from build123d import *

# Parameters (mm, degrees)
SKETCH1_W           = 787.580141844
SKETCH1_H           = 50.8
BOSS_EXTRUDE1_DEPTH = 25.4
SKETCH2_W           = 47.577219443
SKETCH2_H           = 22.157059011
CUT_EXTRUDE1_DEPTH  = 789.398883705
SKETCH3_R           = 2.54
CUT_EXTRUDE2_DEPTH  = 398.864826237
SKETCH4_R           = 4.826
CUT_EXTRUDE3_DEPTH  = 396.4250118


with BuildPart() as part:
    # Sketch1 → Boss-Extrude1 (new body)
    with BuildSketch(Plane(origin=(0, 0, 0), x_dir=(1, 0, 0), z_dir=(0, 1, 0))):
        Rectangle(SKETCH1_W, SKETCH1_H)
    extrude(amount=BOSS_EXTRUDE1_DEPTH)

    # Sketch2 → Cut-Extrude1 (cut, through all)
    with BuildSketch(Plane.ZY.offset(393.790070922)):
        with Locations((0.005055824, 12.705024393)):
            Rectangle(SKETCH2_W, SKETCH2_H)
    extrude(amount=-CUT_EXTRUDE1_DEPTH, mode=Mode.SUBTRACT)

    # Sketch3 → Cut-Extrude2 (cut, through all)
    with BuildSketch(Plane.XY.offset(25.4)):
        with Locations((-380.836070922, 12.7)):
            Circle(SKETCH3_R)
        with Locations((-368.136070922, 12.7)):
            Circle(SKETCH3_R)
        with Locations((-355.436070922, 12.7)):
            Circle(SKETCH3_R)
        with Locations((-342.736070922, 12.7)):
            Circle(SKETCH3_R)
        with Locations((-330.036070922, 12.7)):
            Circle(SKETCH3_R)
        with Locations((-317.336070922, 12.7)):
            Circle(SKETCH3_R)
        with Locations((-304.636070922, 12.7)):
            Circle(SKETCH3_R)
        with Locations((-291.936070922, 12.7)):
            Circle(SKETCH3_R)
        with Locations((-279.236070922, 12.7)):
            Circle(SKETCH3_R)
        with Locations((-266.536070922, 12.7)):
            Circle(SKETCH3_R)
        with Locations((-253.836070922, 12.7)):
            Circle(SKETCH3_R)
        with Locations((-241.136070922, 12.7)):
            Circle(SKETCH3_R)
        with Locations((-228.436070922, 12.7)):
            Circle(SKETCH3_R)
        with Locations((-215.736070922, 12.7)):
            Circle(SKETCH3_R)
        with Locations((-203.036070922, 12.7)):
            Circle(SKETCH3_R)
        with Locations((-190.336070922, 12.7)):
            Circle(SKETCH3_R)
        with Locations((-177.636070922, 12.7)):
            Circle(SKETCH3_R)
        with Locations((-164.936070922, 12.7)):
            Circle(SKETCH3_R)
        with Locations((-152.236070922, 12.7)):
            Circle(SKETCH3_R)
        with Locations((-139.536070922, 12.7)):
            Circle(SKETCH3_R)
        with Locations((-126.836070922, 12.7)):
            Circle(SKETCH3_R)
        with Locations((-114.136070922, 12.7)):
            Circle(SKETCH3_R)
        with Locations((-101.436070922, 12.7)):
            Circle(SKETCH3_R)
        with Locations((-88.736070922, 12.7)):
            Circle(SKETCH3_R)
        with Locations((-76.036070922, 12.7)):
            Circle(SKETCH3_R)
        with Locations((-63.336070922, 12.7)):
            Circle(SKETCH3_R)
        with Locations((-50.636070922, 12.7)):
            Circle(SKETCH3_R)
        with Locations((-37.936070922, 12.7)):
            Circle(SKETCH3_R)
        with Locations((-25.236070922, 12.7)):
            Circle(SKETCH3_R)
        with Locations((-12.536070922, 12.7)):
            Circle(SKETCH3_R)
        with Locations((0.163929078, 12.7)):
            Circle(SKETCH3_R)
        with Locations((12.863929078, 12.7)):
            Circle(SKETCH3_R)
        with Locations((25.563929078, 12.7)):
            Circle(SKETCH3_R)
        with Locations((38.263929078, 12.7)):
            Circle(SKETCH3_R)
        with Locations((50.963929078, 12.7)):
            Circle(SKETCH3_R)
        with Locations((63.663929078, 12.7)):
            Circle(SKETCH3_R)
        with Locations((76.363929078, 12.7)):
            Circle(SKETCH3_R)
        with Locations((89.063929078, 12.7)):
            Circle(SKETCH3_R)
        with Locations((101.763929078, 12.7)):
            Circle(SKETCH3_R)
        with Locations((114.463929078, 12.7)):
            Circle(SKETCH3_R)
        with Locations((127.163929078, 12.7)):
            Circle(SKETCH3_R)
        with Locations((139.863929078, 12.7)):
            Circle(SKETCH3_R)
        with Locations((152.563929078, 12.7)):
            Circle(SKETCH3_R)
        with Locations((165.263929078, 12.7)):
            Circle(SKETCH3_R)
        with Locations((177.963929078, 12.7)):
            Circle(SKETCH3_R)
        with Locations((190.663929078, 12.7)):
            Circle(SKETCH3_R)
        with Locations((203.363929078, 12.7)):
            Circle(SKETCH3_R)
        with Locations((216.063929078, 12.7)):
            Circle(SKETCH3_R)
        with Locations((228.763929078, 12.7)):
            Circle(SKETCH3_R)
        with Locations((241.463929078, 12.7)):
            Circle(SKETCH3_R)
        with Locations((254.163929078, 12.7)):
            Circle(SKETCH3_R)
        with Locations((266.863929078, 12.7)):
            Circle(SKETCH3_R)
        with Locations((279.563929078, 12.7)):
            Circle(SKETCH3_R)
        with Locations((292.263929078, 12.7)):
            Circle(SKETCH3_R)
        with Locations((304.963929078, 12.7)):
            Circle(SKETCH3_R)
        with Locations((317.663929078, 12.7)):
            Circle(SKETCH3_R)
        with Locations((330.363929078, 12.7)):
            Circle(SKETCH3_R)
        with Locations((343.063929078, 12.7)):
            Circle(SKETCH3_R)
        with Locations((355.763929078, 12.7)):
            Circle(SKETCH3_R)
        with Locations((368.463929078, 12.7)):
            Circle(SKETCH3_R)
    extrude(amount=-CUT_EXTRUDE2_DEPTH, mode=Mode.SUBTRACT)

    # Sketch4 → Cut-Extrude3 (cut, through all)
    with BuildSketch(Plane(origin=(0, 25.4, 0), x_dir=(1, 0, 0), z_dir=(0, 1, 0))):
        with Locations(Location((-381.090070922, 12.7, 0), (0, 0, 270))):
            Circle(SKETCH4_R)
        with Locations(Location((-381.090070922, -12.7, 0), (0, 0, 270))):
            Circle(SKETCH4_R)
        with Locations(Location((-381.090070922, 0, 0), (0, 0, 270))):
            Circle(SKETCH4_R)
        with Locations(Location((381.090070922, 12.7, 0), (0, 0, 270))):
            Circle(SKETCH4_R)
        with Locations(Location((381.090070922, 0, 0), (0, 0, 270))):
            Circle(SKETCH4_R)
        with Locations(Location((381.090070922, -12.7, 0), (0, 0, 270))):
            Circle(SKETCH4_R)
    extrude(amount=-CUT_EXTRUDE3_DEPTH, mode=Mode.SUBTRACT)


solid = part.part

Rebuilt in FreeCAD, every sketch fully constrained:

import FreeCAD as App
import Part
import Sketcher
Q = App.Units.Quantity

doc = App.newDocument("Part")
body = doc.addObject("PartDesign::Body", "Body")

sketch1 = body.newObject("Sketcher::SketchObject", "Sketch")
sketch1.AttachmentSupport = (doc.getObject("XZ_Plane"), [""])
sketch1.MapMode = "FlatFace"
sketch1.addGeometry([
    Part.LineSegment(App.Vector(-394, -25, 0), App.Vector(-394, 25, 0)),
    Part.LineSegment(App.Vector(-394, 25, 0), App.Vector(394, 25, 0)),
    Part.LineSegment(App.Vector(394, 25, 0), App.Vector(394, -25, 0)),
    Part.LineSegment(App.Vector(394, -25, 0), App.Vector(-394, -25, 0)),
], False)
sketch1.addConstraint([
    Sketcher.Constraint("Coincident", 0, 2, 1, 1),
    Sketcher.Constraint("Coincident", 1, 2, 2, 1),
    Sketcher.Constraint("Coincident", 2, 2, 3, 1),
    Sketcher.Constraint("Coincident", 3, 2, 0, 1),
    Sketcher.Constraint("Vertical", 0),
    Sketcher.Constraint("Horizontal", 1),
    Sketcher.Constraint("Vertical", 2),
    Sketcher.Constraint("Horizontal", 3),
    Sketcher.Constraint("Symmetric", 0, 2, 2, 2, -1, 1),
    Sketcher.Constraint("DistanceY", 0, 1, 0, 2, Q("2 in")),
    Sketcher.Constraint("DistanceX", 1, 1, 1, 2, Q("787.580142 mm")),
])
pad1 = body.newObject("PartDesign::Pad", "Pad")
pad1.Profile = sketch1
pad1.Length = Q("1 in")
pad1.Reversed = True

sketch2 = body.newObject("Sketcher::SketchObject", "Sketch001")
sketch2.AttachmentSupport = (doc.getObject("YZ_Plane"), [""])
sketch2.MapMode = "FlatFace"
sketch2.AttachmentOffset = App.Placement(App.Vector(0, 0, -393.790071), App.Rotation())
sketch2.addGeometry([
    Part.LineSegment(App.Vector(24, -24, 0), App.Vector(2, -24, 0)),
    Part.LineSegment(App.Vector(2, -24, 0), App.Vector(2, 24, 0)),
    Part.LineSegment(App.Vector(2, 24, 0), App.Vector(24, 24, 0)),
    Part.LineSegment(App.Vector(24, 24, 0), App.Vector(24, -24, 0)),
], False)
sketch2.addConstraint([
    Sketcher.Constraint("Coincident", 0, 2, 1, 1),
    Sketcher.Constraint("Coincident", 1, 2, 2, 1),
    Sketcher.Constraint("Coincident", 2, 2, 3, 1),
    Sketcher.Constraint("Coincident", 3, 2, 0, 1),
    Sketcher.Constraint("Horizontal", 0),
    Sketcher.Constraint("Vertical", 1),
    Sketcher.Constraint("Horizontal", 2),
    Sketcher.Constraint("Vertical", 3),
    Sketcher.Constraint("DistanceX", 0, 2, 0, 1, Q("22.157059 mm")),
    Sketcher.Constraint("DistanceY", 1, 1, 1, 2, Q("47.577219 mm")),
    Sketcher.Constraint("DistanceX", -1, 1, 0, 2, Q("1.626495 mm")),
    Sketcher.Constraint("DistanceY", 0, 2, -1, 1, Q("23.783554 mm")),
])
pocket1 = body.newObject("PartDesign::Pocket", "Pocket")
pocket1.Profile = sketch2
pocket1.Type = "ThroughAll"
pocket1.Reversed = True

sketch3 = body.newObject("Sketcher::SketchObject", "Sketch002")
sketch3.AttachmentSupport = (doc.getObject("XY_Plane"), [""])
sketch3.MapMode = "FlatFace"
sketch3.AttachmentOffset = App.Placement(App.Vector(0, 0, 1 * 25.4), App.Rotation())
sketch3.addGeometry([
    Part.Circle(App.Vector(-380.8, 12.7, 0), App.Vector(0, 0, 1), 2.5),
    Part.Circle(App.Vector(-368.1, 12.7, 0), App.Vector(0, 0, 1), 2.5),
    Part.Circle(App.Vector(-355.4, 12.7, 0), App.Vector(0, 0, 1), 2.5),
    Part.Circle(App.Vector(-342.7, 12.7, 0), App.Vector(0, 0, 1), 2.5),
    Part.Circle(App.Vector(-330, 12.7, 0), App.Vector(0, 0, 1), 2.5),
    Part.Circle(App.Vector(-317.3, 12.7, 0), App.Vector(0, 0, 1), 2.5),
    Part.Circle(App.Vector(-304.6, 12.7, 0), App.Vector(0, 0, 1), 2.5),
    Part.Circle(App.Vector(-291.9, 12.7, 0), App.Vector(0, 0, 1), 2.5),
    Part.Circle(App.Vector(-279.2, 12.7, 0), App.Vector(0, 0, 1), 2.5),
    Part.Circle(App.Vector(-266.5, 12.7, 0), App.Vector(0, 0, 1), 2.5),
    Part.Circle(App.Vector(-253.8, 12.7, 0), App.Vector(0, 0, 1), 2.5),
    Part.Circle(App.Vector(-241.1, 12.7, 0), App.Vector(0, 0, 1), 2.5),
    Part.Circle(App.Vector(-228.4, 12.7, 0), App.Vector(0, 0, 1), 2.5),
    Part.Circle(App.Vector(-215.7, 12.7, 0), App.Vector(0, 0, 1), 2.5),
    Part.Circle(App.Vector(-203, 12.7, 0), App.Vector(0, 0, 1), 2.5),
    Part.Circle(App.Vector(-190.3, 12.7, 0), App.Vector(0, 0, 1), 2.5),
    Part.Circle(App.Vector(-177.6, 12.7, 0), App.Vector(0, 0, 1), 2.5),
    Part.Circle(App.Vector(-164.9, 12.7, 0), App.Vector(0, 0, 1), 2.5),
    Part.Circle(App.Vector(-152.2, 12.7, 0), App.Vector(0, 0, 1), 2.5),
    Part.Circle(App.Vector(-139.5, 12.7, 0), App.Vector(0, 0, 1), 2.5),
    Part.Circle(App.Vector(-126.8, 12.7, 0), App.Vector(0, 0, 1), 2.5),
    Part.Circle(App.Vector(-114.1, 12.7, 0), App.Vector(0, 0, 1), 2.5),
    Part.Circle(App.Vector(-101.4, 12.7, 0), App.Vector(0, 0, 1), 2.5),
    Part.Circle(App.Vector(-88.7, 12.7, 0), App.Vector(0, 0, 1), 2.5),
    Part.Circle(App.Vector(-76, 12.7, 0), App.Vector(0, 0, 1), 2.5),
    Part.Circle(App.Vector(-63.3, 12.7, 0), App.Vector(0, 0, 1), 2.5),
    Part.Circle(App.Vector(-50.6, 12.7, 0), App.Vector(0, 0, 1), 2.5),
    Part.Circle(App.Vector(-37.9, 12.7, 0), App.Vector(0, 0, 1), 2.5),
    Part.Circle(App.Vector(-25.2, 12.7, 0), App.Vector(0, 0, 1), 2.5),
    Part.Circle(App.Vector(-12.5, 12.7, 0), App.Vector(0, 0, 1), 2.5),
    Part.Circle(App.Vector(0.2, 12.7, 0), App.Vector(0, 0, 1), 2.5),
    Part.Circle(App.Vector(12.9, 12.7, 0), App.Vector(0, 0, 1), 2.5),
    Part.Circle(App.Vector(25.6, 12.7, 0), App.Vector(0, 0, 1), 2.5),
    Part.Circle(App.Vector(38.3, 12.7, 0), App.Vector(0, 0, 1), 2.5),
    Part.Circle(App.Vector(51, 12.7, 0), App.Vector(0, 0, 1), 2.5),
    Part.Circle(App.Vector(63.7, 12.7, 0), App.Vector(0, 0, 1), 2.5),
    Part.Circle(App.Vector(76.4, 12.7, 0), App.Vector(0, 0, 1), 2.5),
    Part.Circle(App.Vector(89.1, 12.7, 0), App.Vector(0, 0, 1), 2.5),
    Part.Circle(App.Vector(101.8, 12.7, 0), App.Vector(0, 0, 1), 2.5),
    Part.Circle(App.Vector(114.5, 12.7, 0), App.Vector(0, 0, 1), 2.5),
    Part.Circle(App.Vector(127.2, 12.7, 0), App.Vector(0, 0, 1), 2.5),
    Part.Circle(App.Vector(139.9, 12.7, 0), App.Vector(0, 0, 1), 2.5),
    Part.Circle(App.Vector(152.6, 12.7, 0), App.Vector(0, 0, 1), 2.5),
    Part.Circle(App.Vector(165.3, 12.7, 0), App.Vector(0, 0, 1), 2.5),
    Part.Circle(App.Vector(178, 12.7, 0), App.Vector(0, 0, 1), 2.5),
    Part.Circle(App.Vector(190.7, 12.7, 0), App.Vector(0, 0, 1), 2.5),
    Part.Circle(App.Vector(203.4, 12.7, 0), App.Vector(0, 0, 1), 2.5),
    Part.Circle(App.Vector(216.1, 12.7, 0), App.Vector(0, 0, 1), 2.5),
    Part.Circle(App.Vector(228.8, 12.7, 0), App.Vector(0, 0, 1), 2.5),
    Part.Circle(App.Vector(241.5, 12.7, 0), App.Vector(0, 0, 1), 2.5),
    Part.Circle(App.Vector(254.2, 12.7, 0), App.Vector(0, 0, 1), 2.5),
    Part.Circle(App.Vector(266.9, 12.7, 0), App.Vector(0, 0, 1), 2.5),
    Part.Circle(App.Vector(279.6, 12.7, 0), App.Vector(0, 0, 1), 2.5),
    Part.Circle(App.Vector(292.3, 12.7, 0), App.Vector(0, 0, 1), 2.5),
    Part.Circle(App.Vector(305, 12.7, 0), App.Vector(0, 0, 1), 2.5),
    Part.Circle(App.Vector(317.7, 12.7, 0), App.Vector(0, 0, 1), 2.5),
    Part.Circle(App.Vector(330.4, 12.7, 0), App.Vector(0, 0, 1), 2.5),
    Part.Circle(App.Vector(343.1, 12.7, 0), App.Vector(0, 0, 1), 2.5),
    Part.Circle(App.Vector(355.8, 12.7, 0), App.Vector(0, 0, 1), 2.5),
    Part.Circle(App.Vector(368.5, 12.7, 0), App.Vector(0, 0, 1), 2.5),
], False)
sketch3.addConstraint([
    Sketcher.Constraint("Equal", 0, 1),
    Sketcher.Constraint("Equal", 1, 2),
    Sketcher.Constraint("Equal", 2, 3),
    Sketcher.Constraint("Equal", 3, 4),
    Sketcher.Constraint("Equal", 4, 5),
    Sketcher.Constraint("Equal", 5, 6),
    Sketcher.Constraint("Equal", 6, 7),
    Sketcher.Constraint("Equal", 7, 8),
    Sketcher.Constraint("Equal", 8, 9),
    Sketcher.Constraint("Equal", 9, 10),
    Sketcher.Constraint("Equal", 10, 11),
    Sketcher.Constraint("Equal", 11, 12),
    Sketcher.Constraint("Equal", 12, 13),
    Sketcher.Constraint("Equal", 13, 14),
    Sketcher.Constraint("Equal", 14, 15),
    Sketcher.Constraint("Equal", 15, 16),
    Sketcher.Constraint("Equal", 16, 17),
    Sketcher.Constraint("Equal", 17, 18),
    Sketcher.Constraint("Equal", 18, 19),
    Sketcher.Constraint("Equal", 19, 20),
    Sketcher.Constraint("Equal", 20, 21),
    Sketcher.Constraint("Equal", 21, 22),
    Sketcher.Constraint("Equal", 22, 23),
    Sketcher.Constraint("Equal", 23, 24),
    Sketcher.Constraint("Equal", 24, 25),
    Sketcher.Constraint("Equal", 25, 26),
    Sketcher.Constraint("Equal", 26, 27),
    Sketcher.Constraint("Equal", 27, 28),
    Sketcher.Constraint("Equal", 28, 29),
    Sketcher.Constraint("Equal", 29, 30),
    Sketcher.Constraint("Equal", 30, 31),
    Sketcher.Constraint("Equal", 31, 32),
    Sketcher.Constraint("Equal", 32, 33),
    Sketcher.Constraint("Equal", 33, 34),
    Sketcher.Constraint("Equal", 34, 35),
    Sketcher.Constraint("Equal", 35, 36),
    Sketcher.Constraint("Equal", 36, 37),
    Sketcher.Constraint("Equal", 37, 38),
    Sketcher.Constraint("Equal", 38, 39),
    Sketcher.Constraint("Equal", 39, 40),
    Sketcher.Constraint("Equal", 40, 41),
    Sketcher.Constraint("Equal", 41, 42),
    Sketcher.Constraint("Equal", 42, 43),
    Sketcher.Constraint("Equal", 43, 44),
    Sketcher.Constraint("Equal", 44, 45),
    Sketcher.Constraint("Equal", 45, 46),
    Sketcher.Constraint("Equal", 46, 47),
    Sketcher.Constraint("Equal", 47, 48),
    Sketcher.Constraint("Equal", 48, 49),
    Sketcher.Constraint("Equal", 49, 50),
    Sketcher.Constraint("Equal", 50, 51),
    Sketcher.Constraint("Equal", 51, 52),
    Sketcher.Constraint("Equal", 52, 53),
    Sketcher.Constraint("Equal", 53, 54),
    Sketcher.Constraint("Equal", 54, 55),
    Sketcher.Constraint("Equal", 55, 56),
    Sketcher.Constraint("Equal", 56, 57),
    Sketcher.Constraint("Equal", 57, 58),
    Sketcher.Constraint("Equal", 58, 59),
    Sketcher.Constraint("Horizontal", 0, 3, 1, 3),
    Sketcher.Constraint("Horizontal", 1, 3, 2, 3),
    Sketcher.Constraint("Horizontal", 2, 3, 3, 3),
    Sketcher.Constraint("Horizontal", 3, 3, 4, 3),
    Sketcher.Constraint("Horizontal", 4, 3, 5, 3),
    Sketcher.Constraint("Horizontal", 5, 3, 6, 3),
    Sketcher.Constraint("Horizontal", 6, 3, 7, 3),
    Sketcher.Constraint("Horizontal", 7, 3, 8, 3),
    Sketcher.Constraint("Horizontal", 8, 3, 9, 3),
    Sketcher.Constraint("Horizontal", 9, 3, 10, 3),
    Sketcher.Constraint("Horizontal", 10, 3, 11, 3),
    Sketcher.Constraint("Horizontal", 11, 3, 12, 3),
    Sketcher.Constraint("Horizontal", 12, 3, 13, 3),
    Sketcher.Constraint("Horizontal", 13, 3, 14, 3),
    Sketcher.Constraint("Horizontal", 14, 3, 15, 3),
    Sketcher.Constraint("Horizontal", 15, 3, 16, 3),
    Sketcher.Constraint("Horizontal", 16, 3, 17, 3),
    Sketcher.Constraint("Horizontal", 17, 3, 18, 3),
    Sketcher.Constraint("Horizontal", 18, 3, 19, 3),
    Sketcher.Constraint("Horizontal", 19, 3, 20, 3),
    Sketcher.Constraint("Horizontal", 20, 3, 21, 3),
    Sketcher.Constraint("Horizontal", 21, 3, 22, 3),
    Sketcher.Constraint("Horizontal", 22, 3, 23, 3),
    Sketcher.Constraint("Horizontal", 23, 3, 24, 3),
    Sketcher.Constraint("Horizontal", 24, 3, 25, 3),
    Sketcher.Constraint("Horizontal", 25, 3, 26, 3),
    Sketcher.Constraint("Horizontal", 26, 3, 27, 3),
    Sketcher.Constraint("Horizontal", 27, 3, 28, 3),
    Sketcher.Constraint("Horizontal", 28, 3, 29, 3),
    Sketcher.Constraint("Horizontal", 29, 3, 30, 3),
    Sketcher.Constraint("Horizontal", 30, 3, 31, 3),
    Sketcher.Constraint("Horizontal", 31, 3, 32, 3),
    Sketcher.Constraint("Horizontal", 32, 3, 33, 3),
    Sketcher.Constraint("Horizontal", 33, 3, 34, 3),
    Sketcher.Constraint("Horizontal", 34, 3, 35, 3),
    Sketcher.Constraint("Horizontal", 35, 3, 36, 3),
    Sketcher.Constraint("Horizontal", 36, 3, 37, 3),
    Sketcher.Constraint("Horizontal", 37, 3, 38, 3),
    Sketcher.Constraint("Horizontal", 38, 3, 39, 3),
    Sketcher.Constraint("Horizontal", 39, 3, 40, 3),
    Sketcher.Constraint("Horizontal", 40, 3, 41, 3),
    Sketcher.Constraint("Horizontal", 41, 3, 42, 3),
    Sketcher.Constraint("Horizontal", 42, 3, 43, 3),
    Sketcher.Constraint("Horizontal", 43, 3, 44, 3),
    Sketcher.Constraint("Horizontal", 44, 3, 45, 3),
    Sketcher.Constraint("Horizontal", 45, 3, 46, 3),
    Sketcher.Constraint("Horizontal", 46, 3, 47, 3),
    Sketcher.Constraint("Horizontal", 47, 3, 48, 3),
    Sketcher.Constraint("Horizontal", 48, 3, 49, 3),
    Sketcher.Constraint("Horizontal", 49, 3, 50, 3),
    Sketcher.Constraint("Horizontal", 50, 3, 51, 3),
    Sketcher.Constraint("Horizontal", 51, 3, 52, 3),
    Sketcher.Constraint("Horizontal", 52, 3, 53, 3),
    Sketcher.Constraint("Horizontal", 53, 3, 54, 3),
    Sketcher.Constraint("Horizontal", 54, 3, 55, 3),
    Sketcher.Constraint("Horizontal", 55, 3, 56, 3),
    Sketcher.Constraint("Horizontal", 56, 3, 57, 3),
    Sketcher.Constraint("Horizontal", 57, 3, 58, 3),
    Sketcher.Constraint("Horizontal", 58, 3, 59, 3),
    Sketcher.Constraint("Diameter", 0, Q("0.2 in")),
    Sketcher.Constraint("DistanceX", 0, 3, 2, 3, Q("1 in")),
    Sketcher.Constraint("DistanceX", 1, 3, 3, 3, Q("1 in")),
    Sketcher.Constraint("DistanceX", 2, 3, 4, 3, Q("1 in")),
    Sketcher.Constraint("DistanceX", 3, 3, 5, 3, Q("1 in")),
    Sketcher.Constraint("DistanceX", 4, 3, 6, 3, Q("1 in")),
    Sketcher.Constraint("DistanceX", 5, 3, 7, 3, Q("1 in")),
    Sketcher.Constraint("DistanceX", 6, 3, 8, 3, Q("1 in")),
    Sketcher.Constraint("DistanceX", 7, 3, 9, 3, Q("1 in")),
    Sketcher.Constraint("DistanceX", 8, 3, 10, 3, Q("1 in")),
    Sketcher.Constraint("DistanceX", 9, 3, 11, 3, Q("1 in")),
    Sketcher.Constraint("DistanceX", 10, 3, 12, 3, Q("1 in")),
    Sketcher.Constraint("DistanceX", 11, 3, 13, 3, Q("1 in")),
    Sketcher.Constraint("DistanceX", 12, 3, 14, 3, Q("1 in")),
    Sketcher.Constraint("DistanceX", 13, 3, 15, 3, Q("1 in")),
    Sketcher.Constraint("DistanceX", 14, 3, 16, 3, Q("1 in")),
    Sketcher.Constraint("DistanceX", 15, 3, 17, 3, Q("1 in")),
    Sketcher.Constraint("DistanceX", 16, 3, 18, 3, Q("1 in")),
    Sketcher.Constraint("DistanceX", 17, 3, 19, 3, Q("1 in")),
    Sketcher.Constraint("DistanceX", 18, 3, 20, 3, Q("1 in")),
    Sketcher.Constraint("DistanceX", 19, 3, 21, 3, Q("1 in")),
    Sketcher.Constraint("DistanceX", 20, 3, 22, 3, Q("1 in")),
    Sketcher.Constraint("DistanceX", 21, 3, 23, 3, Q("1 in")),
    Sketcher.Constraint("DistanceX", 22, 3, 24, 3, Q("1 in")),
    Sketcher.Constraint("DistanceX", 23, 3, 25, 3, Q("1 in")),
    Sketcher.Constraint("DistanceX", 24, 3, 26, 3, Q("1 in")),
    Sketcher.Constraint("DistanceX", 25, 3, 27, 3, Q("1 in")),
    Sketcher.Constraint("DistanceX", 26, 3, 28, 3, Q("1 in")),
    Sketcher.Constraint("DistanceX", 27, 3, 29, 3, Q("1 in")),
    Sketcher.Constraint("DistanceX", 28, 3, 30, 3, Q("1 in")),
    Sketcher.Constraint("DistanceX", 29, 3, 31, 3, Q("1 in")),
    Sketcher.Constraint("DistanceX", 30, 3, 32, 3, Q("1 in")),
    Sketcher.Constraint("DistanceX", 31, 3, 33, 3, Q("1 in")),
    Sketcher.Constraint("DistanceX", 32, 3, 34, 3, Q("1 in")),
    Sketcher.Constraint("DistanceX", 33, 3, 35, 3, Q("1 in")),
    Sketcher.Constraint("DistanceX", 34, 3, 36, 3, Q("1 in")),
    Sketcher.Constraint("DistanceX", 35, 3, 37, 3, Q("1 in")),
    Sketcher.Constraint("DistanceX", 36, 3, 38, 3, Q("1 in")),
    Sketcher.Constraint("DistanceX", 37, 3, 39, 3, Q("1 in")),
    Sketcher.Constraint("DistanceX", 38, 3, 40, 3, Q("1 in")),
    Sketcher.Constraint("DistanceX", 39, 3, 41, 3, Q("1 in")),
    Sketcher.Constraint("DistanceX", 40, 3, 42, 3, Q("1 in")),
    Sketcher.Constraint("DistanceX", 41, 3, 43, 3, Q("1 in")),
    Sketcher.Constraint("DistanceX", 42, 3, 44, 3, Q("1 in")),
    Sketcher.Constraint("DistanceX", 43, 3, 45, 3, Q("1 in")),
    Sketcher.Constraint("DistanceX", 44, 3, 46, 3, Q("1 in")),
    Sketcher.Constraint("DistanceX", 45, 3, 47, 3, Q("1 in")),
    Sketcher.Constraint("DistanceX", 46, 3, 48, 3, Q("1 in")),
    Sketcher.Constraint("DistanceX", 47, 3, 49, 3, Q("1 in")),
    Sketcher.Constraint("DistanceX", 48, 3, 50, 3, Q("1 in")),
    Sketcher.Constraint("DistanceX", 49, 3, 51, 3, Q("1 in")),
    Sketcher.Constraint("DistanceX", 50, 3, 52, 3, Q("1 in")),
    Sketcher.Constraint("DistanceX", 51, 3, 53, 3, Q("1 in")),
    Sketcher.Constraint("DistanceX", 52, 3, 54, 3, Q("1 in")),
    Sketcher.Constraint("DistanceX", 53, 3, 55, 3, Q("1 in")),
    Sketcher.Constraint("DistanceX", 54, 3, 56, 3, Q("1 in")),
    Sketcher.Constraint("DistanceX", 55, 3, 57, 3, Q("1 in")),
    Sketcher.Constraint("DistanceX", 56, 3, 58, 3, Q("1 in")),
    Sketcher.Constraint("DistanceX", 57, 3, 59, 3, Q("1 in")),
    Sketcher.Constraint("DistanceY", -1, 1, 0, 3, Q("0.5 in")),
    Sketcher.Constraint("DistanceX", 0, 3, 1, 3, Q("0.5 in")),
    Sketcher.Constraint("DistanceX", 0, 3, -1, 1, Q("380.836071 mm")),
])
pocket2 = body.newObject("PartDesign::Pocket", "Pocket001")
pocket2.Profile = sketch3
pocket2.Type = "ThroughAll"

sketch4 = body.newObject("Sketcher::SketchObject", "Sketch003")
sketch4.AttachmentSupport = (doc.getObject("XZ_Plane"), [""])
sketch4.MapMode = "FlatFace"
sketch4.AttachmentOffset = App.Placement(App.Vector(0, 0, -1 * 25.4), App.Rotation())
sketch4.addGeometry([
    Part.Circle(App.Vector(-381.1, -12.7, 0), App.Vector(0, 0, 1), 4.8),
    Part.Circle(App.Vector(-381.1, 12.7, 0), App.Vector(0, 0, 1), 4.8),
    Part.Circle(App.Vector(-381.1, 0, 0), App.Vector(0, 0, 1), 4.8),
    Part.Circle(App.Vector(381.1, -12.7, 0), App.Vector(0, 0, 1), 4.8),
    Part.Circle(App.Vector(381.1, 0, 0), App.Vector(0, 0, 1), 4.8),
    Part.Circle(App.Vector(381.1, 12.7, 0), App.Vector(0, 0, 1), 4.8),
], False)
sketch4.addConstraint([
    Sketcher.Constraint("Equal", 0, 1),
    Sketcher.Constraint("Equal", 1, 2),
    Sketcher.Constraint("Equal", 2, 3),
    Sketcher.Constraint("Equal", 3, 4),
    Sketcher.Constraint("Equal", 4, 5),
    Sketcher.Constraint("Symmetric", 1, 3, 3, 3, -1, 1),
    Sketcher.Constraint("Symmetric", 2, 3, 4, 3, -1, 1),
    Sketcher.Constraint("Symmetric", 0, 3, 5, 3, -1, 1),
    Sketcher.Constraint("Symmetric", 0, 3, 3, 3, -2),
    Sketcher.Constraint("PointOnObject", 2, 3, -1),
    Sketcher.Constraint("Vertical", 1, 3, 2, 3),
    Sketcher.Constraint("Diameter", 0, Q("0.38 in")),
    Sketcher.Constraint("DistanceY", 0, 3, 1, 3, Q("1 in")),
    Sketcher.Constraint("DistanceX", 0, 3, -1, 1, Q("381.090071 mm")),
])
pocket3 = body.newObject("PartDesign::Pocket", "Pocket002")
pocket3.Profile = sketch4
pocket3.Type = "ThroughAll"
pocket3.Reversed = True

doc.recompute()
